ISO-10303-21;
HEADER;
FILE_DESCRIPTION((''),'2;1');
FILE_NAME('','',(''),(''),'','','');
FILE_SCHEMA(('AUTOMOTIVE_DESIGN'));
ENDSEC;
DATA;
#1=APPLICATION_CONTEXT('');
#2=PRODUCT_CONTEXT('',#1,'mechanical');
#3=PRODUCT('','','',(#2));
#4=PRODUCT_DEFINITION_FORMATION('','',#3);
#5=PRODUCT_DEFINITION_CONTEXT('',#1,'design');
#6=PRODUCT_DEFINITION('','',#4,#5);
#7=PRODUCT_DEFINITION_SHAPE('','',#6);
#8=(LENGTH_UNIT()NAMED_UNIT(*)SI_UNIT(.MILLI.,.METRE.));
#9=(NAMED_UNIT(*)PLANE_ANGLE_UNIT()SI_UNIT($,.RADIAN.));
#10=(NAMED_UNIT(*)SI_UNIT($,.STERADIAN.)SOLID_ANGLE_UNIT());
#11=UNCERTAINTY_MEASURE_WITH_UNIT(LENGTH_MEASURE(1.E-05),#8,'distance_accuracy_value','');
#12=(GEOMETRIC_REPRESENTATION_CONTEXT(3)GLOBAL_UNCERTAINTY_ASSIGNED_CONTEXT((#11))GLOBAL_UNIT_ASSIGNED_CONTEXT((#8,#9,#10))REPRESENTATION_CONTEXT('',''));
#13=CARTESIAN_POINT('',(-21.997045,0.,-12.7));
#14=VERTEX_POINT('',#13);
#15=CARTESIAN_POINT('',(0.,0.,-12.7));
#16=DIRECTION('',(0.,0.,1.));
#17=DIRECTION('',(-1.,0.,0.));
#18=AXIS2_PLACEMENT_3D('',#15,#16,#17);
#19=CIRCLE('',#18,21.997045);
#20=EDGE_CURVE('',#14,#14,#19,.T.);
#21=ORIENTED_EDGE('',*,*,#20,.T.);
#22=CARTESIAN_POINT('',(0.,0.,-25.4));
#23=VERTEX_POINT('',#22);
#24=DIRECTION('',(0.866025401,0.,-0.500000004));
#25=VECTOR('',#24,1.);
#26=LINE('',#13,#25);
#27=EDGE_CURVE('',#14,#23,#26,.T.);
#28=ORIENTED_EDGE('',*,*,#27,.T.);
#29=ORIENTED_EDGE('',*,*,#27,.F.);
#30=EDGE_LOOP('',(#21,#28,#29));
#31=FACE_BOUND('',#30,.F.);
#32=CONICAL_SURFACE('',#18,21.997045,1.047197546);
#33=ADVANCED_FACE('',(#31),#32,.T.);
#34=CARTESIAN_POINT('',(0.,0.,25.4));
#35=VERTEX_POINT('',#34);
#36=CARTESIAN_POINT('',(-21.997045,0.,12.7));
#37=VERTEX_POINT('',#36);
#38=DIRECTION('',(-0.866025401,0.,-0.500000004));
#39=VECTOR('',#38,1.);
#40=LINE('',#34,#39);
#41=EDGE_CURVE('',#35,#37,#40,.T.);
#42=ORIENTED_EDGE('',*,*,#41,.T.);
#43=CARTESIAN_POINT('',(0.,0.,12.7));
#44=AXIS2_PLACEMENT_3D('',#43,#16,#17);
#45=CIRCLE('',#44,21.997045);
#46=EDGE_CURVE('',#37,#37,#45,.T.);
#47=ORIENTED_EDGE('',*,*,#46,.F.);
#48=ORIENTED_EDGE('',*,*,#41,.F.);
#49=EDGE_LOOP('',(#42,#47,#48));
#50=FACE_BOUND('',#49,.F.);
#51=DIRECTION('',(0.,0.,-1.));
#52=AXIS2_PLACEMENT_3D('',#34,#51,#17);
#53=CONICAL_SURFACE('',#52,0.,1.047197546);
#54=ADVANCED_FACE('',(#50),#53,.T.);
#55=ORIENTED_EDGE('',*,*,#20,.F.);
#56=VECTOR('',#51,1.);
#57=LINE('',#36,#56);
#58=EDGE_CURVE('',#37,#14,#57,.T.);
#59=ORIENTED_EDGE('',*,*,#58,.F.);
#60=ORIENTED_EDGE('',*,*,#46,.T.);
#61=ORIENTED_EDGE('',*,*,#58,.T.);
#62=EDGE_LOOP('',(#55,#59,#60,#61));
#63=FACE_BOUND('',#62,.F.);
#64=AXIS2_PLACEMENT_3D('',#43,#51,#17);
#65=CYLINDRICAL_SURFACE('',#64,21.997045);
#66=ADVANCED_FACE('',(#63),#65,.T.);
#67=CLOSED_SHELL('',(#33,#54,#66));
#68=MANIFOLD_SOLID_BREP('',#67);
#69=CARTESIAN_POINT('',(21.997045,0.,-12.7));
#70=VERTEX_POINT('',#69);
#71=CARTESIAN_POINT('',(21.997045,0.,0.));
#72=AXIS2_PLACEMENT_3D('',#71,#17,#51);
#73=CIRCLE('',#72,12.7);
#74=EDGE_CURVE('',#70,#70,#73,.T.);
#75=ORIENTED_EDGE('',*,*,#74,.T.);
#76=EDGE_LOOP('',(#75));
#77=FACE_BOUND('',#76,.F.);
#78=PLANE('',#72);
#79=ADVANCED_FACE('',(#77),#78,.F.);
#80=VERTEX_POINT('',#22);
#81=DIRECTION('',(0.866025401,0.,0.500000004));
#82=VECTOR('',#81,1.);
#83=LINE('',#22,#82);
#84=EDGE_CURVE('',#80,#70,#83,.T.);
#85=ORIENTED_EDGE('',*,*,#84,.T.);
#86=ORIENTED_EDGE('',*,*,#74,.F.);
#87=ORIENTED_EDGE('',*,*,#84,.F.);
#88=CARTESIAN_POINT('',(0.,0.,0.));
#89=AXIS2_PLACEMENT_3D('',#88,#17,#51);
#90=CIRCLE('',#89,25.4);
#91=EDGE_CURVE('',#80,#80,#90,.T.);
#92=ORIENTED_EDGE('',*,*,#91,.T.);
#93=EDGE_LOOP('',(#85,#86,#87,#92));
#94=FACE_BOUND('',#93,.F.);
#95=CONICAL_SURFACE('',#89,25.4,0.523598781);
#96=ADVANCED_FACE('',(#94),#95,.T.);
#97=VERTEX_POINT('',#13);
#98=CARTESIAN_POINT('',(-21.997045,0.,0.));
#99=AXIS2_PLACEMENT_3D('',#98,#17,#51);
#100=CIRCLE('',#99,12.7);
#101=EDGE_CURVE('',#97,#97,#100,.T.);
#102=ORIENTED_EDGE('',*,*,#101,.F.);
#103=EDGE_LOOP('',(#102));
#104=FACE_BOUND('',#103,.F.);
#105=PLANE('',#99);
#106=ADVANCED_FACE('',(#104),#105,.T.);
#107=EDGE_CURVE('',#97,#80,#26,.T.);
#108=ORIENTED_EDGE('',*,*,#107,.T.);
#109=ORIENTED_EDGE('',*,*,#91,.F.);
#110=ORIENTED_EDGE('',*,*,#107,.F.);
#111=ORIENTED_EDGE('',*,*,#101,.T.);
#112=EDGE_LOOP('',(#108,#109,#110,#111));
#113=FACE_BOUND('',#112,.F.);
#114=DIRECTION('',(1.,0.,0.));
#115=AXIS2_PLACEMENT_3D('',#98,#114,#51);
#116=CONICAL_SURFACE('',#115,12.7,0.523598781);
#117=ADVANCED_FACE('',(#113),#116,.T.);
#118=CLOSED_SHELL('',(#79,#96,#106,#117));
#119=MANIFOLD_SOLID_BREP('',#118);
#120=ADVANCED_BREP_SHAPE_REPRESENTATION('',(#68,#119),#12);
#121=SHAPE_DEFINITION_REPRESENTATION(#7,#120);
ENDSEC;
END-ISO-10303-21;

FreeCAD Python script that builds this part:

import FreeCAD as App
import Part
import Sketcher

V = App.Vector
Q = App.Units.Quantity

doc = App.newDocument("Part")
params = doc.addObject("Spreadsheet::Sheet", "Params")
for row, (alias, value) in enumerate([
    ("sketch1_height", "1 in"),
    ("sketch1_height2", "2 in"),
    ("sketch1_length", "1 in"),
    ("revolution_angle", "360 deg"),
    ("sketch2_length", "1 in"),
    ("sketch2_height", "0.5 in"),
    ("revolution2_angle", "360 deg"),
], start=1):
    params.set(f"A{row}", alias)
    params.set(f"B{row}", "=" + value)
    params.setAlias(f"B{row}", alias)

body = doc.addObject("PartDesign::Body", "Body")

# Sketch on XZ plane
sketch1 = body.newObject("Sketcher::SketchObject", "Sketch")
sketch1.AttachmentSupport = (doc.getObject("XZ_Plane"), [""])
sketch1.MapMode = "FlatFace"
sketch1.addGeometry(Part.LineSegment(V(0, 25, 0), V(-22, 13, 0)), False)
sketch1.addGeometry(Part.LineSegment(V(-22, 13, 0), V(-22, -13, 0)), False)
sketch1.addGeometry(Part.LineSegment(V(-22, -13, 0), V(0, -25, 0)), False)
sketch1.addGeometry(Part.LineSegment(V(0, -25, 0), V(0, 25, 0)), False)
sketch1.addConstraint(Sketcher.Constraint("Coincident", 0, 2, 1, 1))
sketch1.addConstraint(Sketcher.Constraint("Coincident", 1, 2, 2, 1))
sketch1.addConstraint(Sketcher.Constraint("Coincident", 2, 2, 3, 1))
sketch1.addConstraint(Sketcher.Constraint("Coincident", 3, 2, 0, 1))
sketch1.addConstraint(Sketcher.Constraint("Vertical", 1))
sketch1.addConstraint(Sketcher.Constraint("Vertical", 3))
sketch1.addConstraint(Sketcher.Constraint("Symmetric", 2, 2, 3, 2, -1, 1))
sketch1.addConstraint(Sketcher.Constraint("Equal", 0, 2))
sketch1.addConstraint(Sketcher.Constraint("DistanceY", 1, 2, 1, 1, Q("1 in")))
sketch1.addConstraint(Sketcher.Constraint("DistanceY", 3, 1, 3, 2, Q("2 in")))
sketch1.addConstraint(Sketcher.Constraint("Distance", 0, Q("1 in")))
sketch1.setExpression("Constraints[8]", "Params.sketch1_height")
sketch1.setExpression("Constraints[9]", "Params.sketch1_height2")
sketch1.setExpression("Constraints[10]", "Params.sketch1_length")
revolution = body.newObject("PartDesign::Revolution", "Revolution")
revolution.Profile = sketch1
revolution.ReferenceAxis = (sketch1, ["V_Axis"])
revolution.setExpression("Angle", "Params.revolution_angle")
body2 = doc.addObject("PartDesign::Body", "Body001")

# Sketch on XZ plane
sketch2 = body2.newObject("Sketcher::SketchObject", "Sketch001")
sketch2.AttachmentSupport = (doc.getObject("XZ_Plane001"), [""])
sketch2.MapMode = "FlatFace"
sketch2.addGeometry(Part.LineSegment(V(-22, 0, 0), V(-22, -13, 0)), False)
sketch2.addGeometry(Part.LineSegment(V(-22, -13, 0), V(0, -25, 0)), False)
sketch2.addGeometry(Part.LineSegment(V(0, -25, 0), V(22, -13, 0)), False)
sketch2.addGeometry(Part.LineSegment(V(22, -13, 0), V(22, 0, 0)), False)
sketch2.addGeometry(Part.LineSegment(V(22, 0, 0), V(-22, 0, 0)), False)
sketch2.addConstraint(Sketcher.Constraint("Coincident", 0, 2, 1, 1))
sketch2.addConstraint(Sketcher.Constraint("Coincident", 1, 2, 2, 1))
sketch2.addConstraint(Sketcher.Constraint("Coincident", 2, 2, 3, 1))
sketch2.addConstraint(Sketcher.Constraint("Coincident", 3, 2, 4, 1))
sketch2.addConstraint(Sketcher.Constraint("Coincident", 4, 2, 0, 1))
sketch2.addConstraint(Sketcher.Constraint("Vertical", 0))
sketch2.addConstraint(Sketcher.Constraint("Vertical", 3))
sketch2.addConstraint(Sketcher.Constraint("Horizontal", 4))
sketch2.addConstraint(Sketcher.Constraint("Symmetric", 3, 2, 4, 2, -1, 1))
sketch2.addConstraint(Sketcher.Constraint("PointOnObject", 1, 2, -2))
sketch2.addConstraint(Sketcher.Constraint("Horizontal", 0, 2, 2, 2))
sketch2.addConstraint(Sketcher.Constraint("Distance", 1, Q("1 in")))
sketch2.addConstraint(Sketcher.Constraint("DistanceY", 0, 2, 0, 1, Q("0.5 in")))
sketch2.addConstraint(Sketcher.Constraint("DistanceY", 1, 2, -1, 1, Q("1 in")))
sketch2.setExpression("Constraints[11]", "Params.sketch2_length")
sketch2.setExpression("Constraints[12]", "Params.sketch2_height")
revolution2 = body2.newObject("PartDesign::Revolution", "Revolution001")
revolution2.Profile = sketch2
revolution2.ReferenceAxis = (sketch2, ["H_Axis"])
revolution2.setExpression("Angle", "Params.revolution2_angle")

doc.recompute()
